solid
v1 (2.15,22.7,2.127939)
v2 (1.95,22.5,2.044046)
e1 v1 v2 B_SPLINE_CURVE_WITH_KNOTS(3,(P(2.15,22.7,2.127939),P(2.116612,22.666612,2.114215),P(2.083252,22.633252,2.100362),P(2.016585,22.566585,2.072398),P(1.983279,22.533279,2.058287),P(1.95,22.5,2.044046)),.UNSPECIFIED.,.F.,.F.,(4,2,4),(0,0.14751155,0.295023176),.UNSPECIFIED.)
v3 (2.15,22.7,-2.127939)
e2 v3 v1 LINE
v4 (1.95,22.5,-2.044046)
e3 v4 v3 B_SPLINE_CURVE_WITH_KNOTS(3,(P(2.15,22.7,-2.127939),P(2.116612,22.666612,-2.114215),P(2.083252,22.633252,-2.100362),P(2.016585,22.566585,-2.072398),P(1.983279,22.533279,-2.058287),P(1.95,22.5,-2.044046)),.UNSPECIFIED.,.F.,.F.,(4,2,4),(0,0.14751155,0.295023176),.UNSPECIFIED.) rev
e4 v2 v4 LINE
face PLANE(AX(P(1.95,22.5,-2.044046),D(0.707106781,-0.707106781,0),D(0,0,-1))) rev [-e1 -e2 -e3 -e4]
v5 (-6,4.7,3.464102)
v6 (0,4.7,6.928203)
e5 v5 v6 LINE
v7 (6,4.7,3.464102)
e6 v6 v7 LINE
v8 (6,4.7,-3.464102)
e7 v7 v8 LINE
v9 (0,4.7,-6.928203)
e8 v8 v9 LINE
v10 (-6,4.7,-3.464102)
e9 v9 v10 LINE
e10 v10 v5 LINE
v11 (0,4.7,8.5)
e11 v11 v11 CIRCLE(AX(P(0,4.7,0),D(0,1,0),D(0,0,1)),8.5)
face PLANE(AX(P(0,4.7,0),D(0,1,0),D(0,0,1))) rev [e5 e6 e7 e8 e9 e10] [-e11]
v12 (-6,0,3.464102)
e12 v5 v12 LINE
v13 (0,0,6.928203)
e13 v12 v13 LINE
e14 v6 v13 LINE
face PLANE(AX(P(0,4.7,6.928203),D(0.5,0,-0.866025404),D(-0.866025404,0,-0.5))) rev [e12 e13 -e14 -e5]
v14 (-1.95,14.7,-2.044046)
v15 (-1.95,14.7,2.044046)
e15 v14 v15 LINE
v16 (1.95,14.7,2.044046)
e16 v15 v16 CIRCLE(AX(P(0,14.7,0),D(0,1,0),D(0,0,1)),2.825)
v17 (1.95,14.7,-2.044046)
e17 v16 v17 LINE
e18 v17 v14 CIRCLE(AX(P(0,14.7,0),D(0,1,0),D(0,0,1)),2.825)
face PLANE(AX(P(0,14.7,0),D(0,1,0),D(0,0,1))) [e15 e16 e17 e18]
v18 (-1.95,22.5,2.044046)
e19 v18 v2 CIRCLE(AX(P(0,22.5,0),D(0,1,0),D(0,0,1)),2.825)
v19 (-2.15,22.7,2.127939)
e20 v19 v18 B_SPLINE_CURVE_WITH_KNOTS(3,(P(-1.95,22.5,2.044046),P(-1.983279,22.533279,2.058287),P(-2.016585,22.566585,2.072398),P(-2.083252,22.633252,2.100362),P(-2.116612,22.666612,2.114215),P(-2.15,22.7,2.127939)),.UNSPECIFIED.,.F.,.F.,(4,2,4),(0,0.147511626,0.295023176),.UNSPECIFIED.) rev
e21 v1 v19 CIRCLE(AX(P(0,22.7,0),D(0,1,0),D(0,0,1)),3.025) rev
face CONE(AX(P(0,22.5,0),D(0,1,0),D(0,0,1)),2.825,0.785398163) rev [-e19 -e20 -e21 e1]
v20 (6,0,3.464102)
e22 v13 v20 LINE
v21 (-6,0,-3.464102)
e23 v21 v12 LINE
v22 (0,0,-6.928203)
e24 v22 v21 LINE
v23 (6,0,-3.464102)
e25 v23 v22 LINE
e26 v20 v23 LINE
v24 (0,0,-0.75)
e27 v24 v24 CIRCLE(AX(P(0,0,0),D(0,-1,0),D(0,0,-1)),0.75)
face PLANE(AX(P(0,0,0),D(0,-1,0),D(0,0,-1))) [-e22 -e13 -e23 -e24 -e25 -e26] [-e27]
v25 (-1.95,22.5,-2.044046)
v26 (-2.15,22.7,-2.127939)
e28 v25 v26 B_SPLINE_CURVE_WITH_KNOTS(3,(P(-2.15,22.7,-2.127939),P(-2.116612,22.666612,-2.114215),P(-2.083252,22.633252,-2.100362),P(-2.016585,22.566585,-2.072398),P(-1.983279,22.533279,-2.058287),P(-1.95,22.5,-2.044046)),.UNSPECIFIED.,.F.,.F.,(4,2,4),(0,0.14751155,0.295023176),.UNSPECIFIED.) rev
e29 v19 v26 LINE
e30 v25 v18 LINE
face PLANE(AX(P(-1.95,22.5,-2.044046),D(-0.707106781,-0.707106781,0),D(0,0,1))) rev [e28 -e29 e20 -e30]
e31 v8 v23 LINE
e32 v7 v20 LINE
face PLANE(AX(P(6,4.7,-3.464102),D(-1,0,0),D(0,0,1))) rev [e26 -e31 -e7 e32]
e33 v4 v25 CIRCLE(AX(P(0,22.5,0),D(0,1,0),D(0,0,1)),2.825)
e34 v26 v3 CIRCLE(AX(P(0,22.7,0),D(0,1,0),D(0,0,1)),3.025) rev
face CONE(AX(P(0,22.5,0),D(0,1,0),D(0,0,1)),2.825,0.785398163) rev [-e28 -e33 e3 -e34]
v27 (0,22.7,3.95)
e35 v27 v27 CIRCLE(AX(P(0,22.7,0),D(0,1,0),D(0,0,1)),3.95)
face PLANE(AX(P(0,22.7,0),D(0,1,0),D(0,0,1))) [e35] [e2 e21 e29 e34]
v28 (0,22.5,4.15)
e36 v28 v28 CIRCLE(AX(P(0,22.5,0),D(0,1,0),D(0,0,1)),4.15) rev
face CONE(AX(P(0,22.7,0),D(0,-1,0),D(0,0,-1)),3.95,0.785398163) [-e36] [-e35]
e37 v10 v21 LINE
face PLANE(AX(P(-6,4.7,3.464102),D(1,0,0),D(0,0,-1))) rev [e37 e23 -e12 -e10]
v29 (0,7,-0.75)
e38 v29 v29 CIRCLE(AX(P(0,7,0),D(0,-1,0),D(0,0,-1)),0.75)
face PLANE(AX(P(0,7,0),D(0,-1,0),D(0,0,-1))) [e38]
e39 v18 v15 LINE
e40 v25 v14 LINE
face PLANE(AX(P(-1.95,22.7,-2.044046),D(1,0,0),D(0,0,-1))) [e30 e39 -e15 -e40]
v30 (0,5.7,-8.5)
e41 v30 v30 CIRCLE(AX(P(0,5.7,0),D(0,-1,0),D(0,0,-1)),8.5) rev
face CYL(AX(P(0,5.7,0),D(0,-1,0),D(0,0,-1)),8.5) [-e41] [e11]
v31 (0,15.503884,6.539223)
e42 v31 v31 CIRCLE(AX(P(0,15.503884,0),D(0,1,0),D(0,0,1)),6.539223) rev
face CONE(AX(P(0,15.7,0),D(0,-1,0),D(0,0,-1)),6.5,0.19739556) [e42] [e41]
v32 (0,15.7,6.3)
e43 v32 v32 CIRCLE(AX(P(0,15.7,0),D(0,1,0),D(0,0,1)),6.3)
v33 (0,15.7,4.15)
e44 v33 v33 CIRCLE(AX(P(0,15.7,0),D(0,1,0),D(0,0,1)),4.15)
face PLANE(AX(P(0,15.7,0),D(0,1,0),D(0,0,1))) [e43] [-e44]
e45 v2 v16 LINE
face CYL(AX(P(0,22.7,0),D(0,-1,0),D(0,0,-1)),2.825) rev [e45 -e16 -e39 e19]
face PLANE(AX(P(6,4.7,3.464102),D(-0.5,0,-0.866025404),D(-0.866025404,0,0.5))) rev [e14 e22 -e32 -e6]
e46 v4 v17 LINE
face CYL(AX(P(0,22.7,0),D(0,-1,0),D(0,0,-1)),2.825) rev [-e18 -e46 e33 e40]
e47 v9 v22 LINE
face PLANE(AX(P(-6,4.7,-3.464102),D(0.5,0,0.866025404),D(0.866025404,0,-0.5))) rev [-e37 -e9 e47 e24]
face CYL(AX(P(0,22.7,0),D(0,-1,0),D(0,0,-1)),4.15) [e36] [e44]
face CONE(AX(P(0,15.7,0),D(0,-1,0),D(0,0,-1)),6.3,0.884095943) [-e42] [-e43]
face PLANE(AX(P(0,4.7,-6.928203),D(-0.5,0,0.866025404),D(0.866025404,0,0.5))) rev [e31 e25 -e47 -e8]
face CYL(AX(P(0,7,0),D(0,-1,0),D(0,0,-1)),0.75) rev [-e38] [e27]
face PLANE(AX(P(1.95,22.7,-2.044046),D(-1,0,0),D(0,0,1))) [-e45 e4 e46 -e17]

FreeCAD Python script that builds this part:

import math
import FreeCAD as App
import Part
import Sketcher

V = App.Vector
Q = App.Units.Quantity


def edges_at(feature, points):
    """Names of the edges that pass closest to the given points."""
    edges = feature.Shape.Edges
    near = lambda p: min(range(len(edges)), key=lambda i: edges[i].distToShape(Part.Vertex(*p))[0])
    return sorted({f"Edge{near(p) + 1}" for p in points})


def add_polygon(sketch, points):
    """Adds a closed chain of lines whose ends are joined by coincident constraints."""
    first, n = sketch.GeometryCount, len(points)
    for a, b in zip(points, points[1:] + points[:1]):
        sketch.addGeometry(Part.LineSegment(App.Vector(*a, 0), App.Vector(*b, 0)), False)
    for i in range(n):
        sketch.addConstraint(Sketcher.Constraint("Coincident", first + i, 2, first + (i + 1) % n, 1))

doc = App.newDocument("Part")
body = doc.addObject("PartDesign::Body", "Body")

# Sketch on XZ plane
sketch1 = body.newObject("Sketcher::SketchObject", "Sketch")
sketch1.AttachmentSupport = (doc.getObject("XZ_Plane"), [""])
sketch1.MapMode = "FlatFace"
add_polygon(sketch1, [(6, -3), (0, -7), (-6, -3), (-6, 3), (0, 7), (6, 3)])  # lines 0-5
sketch1.addConstraint([
    Sketcher.Constraint("Vertical", 2),
    Sketcher.Constraint("Vertical", 5),
    Sketcher.Constraint("Symmetric", 0, 2, 3, 2, -1, 1),
    Sketcher.Constraint("Symmetric", 1, 2, 4, 2, -1, 1),
    Sketcher.Constraint("PointOnObject", 0, 2, -2),
    Sketcher.Constraint("Parallel", 0, 3),
    Sketcher.Constraint("Horizontal", 2, 2, 4, 2),
    Sketcher.Constraint("Angle", 0, Q("-150 deg")),
    Sketcher.Constraint("DistanceX", 1, 2, -1, 1, Q("6 mm")),
    Sketcher.Constraint("DistanceY", 1, 2, -1, 1, Q("3.464102 mm")),
])
pad1 = body.newObject("PartDesign::Pad", "Pad")
pad1.Profile = sketch1
pad1.Length = 4.7
pad1.Reversed = True

# Sketch on XZ plane
sketch2 = body.newObject("Sketcher::SketchObject", "Sketch001")
sketch2.AttachmentSupport = (doc.getObject("XZ_Plane"), [""])
sketch2.MapMode = "FlatFace"
sketch2.AttachmentOffset = App.Placement(V(0, 0, -4.7), App.Rotation())
sketch2.addGeometry(Part.Circle(V(0, 0, 0), V(0, 0, 1), 8), False)
sketch2.addConstraint([
    Sketcher.Constraint("Coincident", 0, 3, -1, 1),
    Sketcher.Constraint("Diameter", 0, Q("17 mm")),
])
pad2 = body.newObject("PartDesign::Pad", "Pad001")
pad2.Profile = sketch2
pad2.Length = 1
pad2.Reversed = True

# Sketch on XZ plane
sketch3 = body.newObject("Sketcher::SketchObject", "Sketch002")
sketch3.AttachmentSupport = (doc.getObject("XZ_Plane"), [""])
sketch3.MapMode = "FlatFace"
sketch3.AttachmentOffset = App.Placement(V(0, 0, -15.7), App.Rotation())
sketch3.addGeometry(Part.Circle(V(0, 0, 0), V(0, 0, 1), 6), False)
sketch3.addConstraint([
    Sketcher.Constraint("Coincident", 0, 3, -1, 1),
    Sketcher.Constraint("Diameter", 0, Q("13 mm")),
])

# Sketch on XZ plane
sketch4 = body.newObject("Sketcher::SketchObject", "Sketch003")
sketch4.AttachmentSupport = (doc.getObject("XZ_Plane"), [""])
sketch4.MapMode = "FlatFace"
sketch4.AttachmentOffset = App.Placement(V(0, 0, -5.7), App.Rotation())
sketch4.addGeometry(Part.Circle(V(0, 0, 0), V(0, 0, 1), 8), False)
sketch4.addConstraint([
    Sketcher.Constraint("Coincident", 0, 3, -1, 1),
    Sketcher.Constraint("Diameter", 0, Q("17 mm")),
])

additiveloft = body.newObject("PartDesign::AdditiveLoft", "AdditiveLoft")
additiveloft.Profile = sketch3
additiveloft.Sections = [sketch4]

# Sketch on XZ plane
sketch5 = body.newObject("Sketcher::SketchObject", "Sketch004")
sketch5.AttachmentSupport = (doc.getObject("XZ_Plane"), [""])
sketch5.MapMode = "FlatFace"
sketch5.AttachmentOffset = App.Placement(V(0, 0, -15.7), App.Rotation())
sketch5.addGeometry([
    Part.Circle(V(0, 0, 0), V(0, 0, 1), 4.2),  # 0
    Part.LineSegment(V(-1.9, 2, 0), V(-1.9, -2, 0)),  # 1
    Part.ArcOfCircle(Part.Circle(V(0, 0, 0), V(0, 0, 1), 2.8), math.radians(-134), math.radians(-46)),  # 2
    Part.LineSegment(V(1.9, -2, 0), V(1.9, 2, 0)),  # 3
    Part.ArcOfCircle(Part.Circle(V(0, 0, 0), V(0, 0, 1), 2.8), math.radians(46), math.radians(134)),  # 4
], False)
sketch5.addConstraint([
    Sketcher.Constraint("Coincident", 1, 2, 2, 1),
    Sketcher.Constraint("Coincident", 2, 2, 3, 1),
    Sketcher.Constraint("Coincident", 3, 2, 4, 1),
    Sketcher.Constraint("Coincident", 4, 2, 1, 1),
    Sketcher.Constraint("Vertical", 1),
    Sketcher.Constraint("Vertical", 3),
    Sketcher.Constraint("Coincident", 0, 3, -1, 1),
    Sketcher.Constraint("Coincident", 2, 3, -1, 1),
    Sketcher.Constraint("Coincident", 4, 3, -1, 1),
    Sketcher.Constraint("Equal", 2, 4),
    Sketcher.Constraint("Horizontal", 1, 2, 2, 2),
    Sketcher.Constraint("Diameter", 0, Q("8.3 mm")),
    Sketcher.Constraint("Radius", 2, Q("2.825 mm")),
    Sketcher.Constraint("DistanceX", 1, 2, 2, 2, Q("3.9 mm")),
])
pad3 = body.newObject("PartDesign::Pad", "Pad002")
pad3.Profile = sketch5
pad3.Length = 7
pad3.Reversed = True
doc.recompute()

chamfer = body.newObject("PartDesign::Chamfer", "Chamfer")
chamfer.Base = (pad3, edges_at(pad3, [
    (-6.5, 15.7, 0),
    (0, 22.7, -4.15),
    (0, 22.7, -2.825),
    (-1.95, 22.7, 0),
    (0, 22.7, 2.825),
    (1.95, 22.7, 0),
]))
chamfer.Size = 0.2

# Sketch on XZ plane
sketch6 = body.newObject("Sketcher::SketchObject", "Sketch005")
sketch6.AttachmentSupport = (doc.getObject("XZ_Plane"), [""])
sketch6.MapMode = "FlatFace"
sketch6.addGeometry(Part.Circle(V(0, 0, 0), V(0, 0, 1), 0.8), False)
sketch6.addConstraint([
    Sketcher.Constraint("Coincident", 0, 3, -1, 1),
    Sketcher.Constraint("Diameter", 0, Q("1.5 mm")),
])
pocket1 = body.newObject("PartDesign::Pocket", "Pocket")
pocket1.Profile = sketch6
pocket1.Length = 7

# Sketch on XZ plane
sketch7 = body.newObject("Sketcher::SketchObject", "Sketch006")
sketch7.AttachmentSupport = (doc.getObject("XZ_Plane"), [""])
sketch7.MapMode = "FlatFace"
sketch7.AttachmentOffset = App.Placement(V(0, 0, -14.7), App.Rotation())
sketch7.addGeometry([
    Part.LineSegment(V(1.9, 2, 0), V(1.9, -2, 0)),
    Part.ArcOfCircle(Part.Circle(V(0, 0, 0), V(0, 0, 1), 2.8), math.radians(-134), math.radians(-46)),
    Part.LineSegment(V(-1.9, -2, 0), V(-1.9, 2, 0)),
    Part.ArcOfCircle(Part.Circle(V(0, 0, 0), V(0, 0, 1), 2.8), math.radians(46), math.radians(134)),
], False)
sketch7.addConstraint([
    Sketcher.Constraint("Coincident", 0, 2, 1, 2),
    Sketcher.Constraint("Coincident", 1, 1, 2, 1),
    Sketcher.Constraint("Coincident", 2, 2, 3, 2),
    Sketcher.Constraint("Coincident", 3, 1, 0, 1),
    Sketcher.Constraint("Vertical", 0),
    Sketcher.Constraint("Vertical", 2),
    Sketcher.Constraint("Coincident", 1, 3, -1, 1),
    Sketcher.Constraint("Coincident", 3, 3, -1, 1),
    Sketcher.Constraint("Equal", 1, 3),
    Sketcher.Constraint("Horizontal", 0, 2, 1, 1),
    Sketcher.Constraint("Radius", 1, Q("2.825 mm")),
    Sketcher.Constraint("DistanceX", 1, 1, 0, 2, Q("3.9 mm")),
])
pocket2 = body.newObject("PartDesign::Pocket", "Pocket001")
pocket2.Profile = sketch7
pocket2.Length = 1

doc.recompute()
